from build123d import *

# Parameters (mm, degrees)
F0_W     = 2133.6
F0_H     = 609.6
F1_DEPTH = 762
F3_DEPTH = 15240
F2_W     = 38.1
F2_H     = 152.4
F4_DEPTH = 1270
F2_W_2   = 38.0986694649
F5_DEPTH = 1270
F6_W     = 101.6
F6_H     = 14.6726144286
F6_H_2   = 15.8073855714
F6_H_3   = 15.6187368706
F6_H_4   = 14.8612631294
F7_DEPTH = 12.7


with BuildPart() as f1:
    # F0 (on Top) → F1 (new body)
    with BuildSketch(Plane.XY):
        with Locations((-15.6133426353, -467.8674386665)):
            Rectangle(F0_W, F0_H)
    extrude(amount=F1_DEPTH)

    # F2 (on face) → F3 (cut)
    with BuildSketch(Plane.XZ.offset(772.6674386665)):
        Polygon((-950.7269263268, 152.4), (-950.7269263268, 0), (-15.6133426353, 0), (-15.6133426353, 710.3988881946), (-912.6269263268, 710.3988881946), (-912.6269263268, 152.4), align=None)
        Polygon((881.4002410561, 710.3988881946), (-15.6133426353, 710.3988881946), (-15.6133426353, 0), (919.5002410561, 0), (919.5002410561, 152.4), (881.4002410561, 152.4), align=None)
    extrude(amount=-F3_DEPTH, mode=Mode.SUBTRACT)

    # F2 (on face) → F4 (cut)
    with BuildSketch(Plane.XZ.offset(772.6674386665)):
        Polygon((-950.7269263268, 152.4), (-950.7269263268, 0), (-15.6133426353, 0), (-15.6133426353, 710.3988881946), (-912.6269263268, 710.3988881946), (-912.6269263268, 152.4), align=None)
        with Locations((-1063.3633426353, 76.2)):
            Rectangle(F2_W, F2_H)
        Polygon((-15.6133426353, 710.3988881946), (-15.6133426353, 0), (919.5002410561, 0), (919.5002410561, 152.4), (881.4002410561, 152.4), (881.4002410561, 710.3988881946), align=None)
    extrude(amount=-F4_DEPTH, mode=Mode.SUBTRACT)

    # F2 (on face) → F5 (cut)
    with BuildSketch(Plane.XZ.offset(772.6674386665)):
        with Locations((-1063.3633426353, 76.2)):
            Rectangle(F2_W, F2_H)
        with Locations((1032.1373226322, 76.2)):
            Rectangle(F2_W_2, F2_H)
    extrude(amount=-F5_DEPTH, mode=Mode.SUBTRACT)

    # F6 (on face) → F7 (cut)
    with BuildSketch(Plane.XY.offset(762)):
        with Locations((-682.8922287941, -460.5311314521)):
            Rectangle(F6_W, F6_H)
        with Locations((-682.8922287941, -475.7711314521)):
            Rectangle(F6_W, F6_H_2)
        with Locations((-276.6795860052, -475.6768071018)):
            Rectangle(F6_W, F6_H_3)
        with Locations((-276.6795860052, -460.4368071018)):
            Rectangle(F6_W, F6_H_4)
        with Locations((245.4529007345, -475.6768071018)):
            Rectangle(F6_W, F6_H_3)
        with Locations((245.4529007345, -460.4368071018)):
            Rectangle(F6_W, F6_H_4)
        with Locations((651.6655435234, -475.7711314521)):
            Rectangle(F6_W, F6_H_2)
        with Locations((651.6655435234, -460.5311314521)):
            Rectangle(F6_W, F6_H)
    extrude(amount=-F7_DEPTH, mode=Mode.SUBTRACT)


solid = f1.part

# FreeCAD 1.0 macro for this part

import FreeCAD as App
import Part
import Sketcher
from FreeCAD import Vector
Q = App.Units.Quantity

doc = App.newDocument("Part")
params = doc.addObject("Spreadsheet::Sheet", "Params")
for row, (alias, value) in enumerate([
    ("sketch1_width", "84 in"),
    ("sketch1_height", "24 in"),
    ("pad1_length", "30 in"),
    ("sketch2_height", "6 in"),
    ("sketch2_width", "1.5 in"),
    ("pocket1_length", "600 in"),
    ("sketch3_height", "6 in"),
    ("sketch3_width", "1.5 in"),
    ("pocket2_length", "50 in"),
    ("sketch4_height", "6 in"),
    ("sketch4_width", "1.5 in"),
    ("pocket3_length", "50 in"),
    ("sketch5_width", "4 in"),
    ("sketch5_height", "1.2 in"),
    ("pocket4_length", "0.5 in"),
], start=1):
    params.set(f"A{row}", alias)
    params.set(f"B{row}", "=" + value)
    params.setAlias(f"B{row}", alias)

body = doc.addObject("PartDesign::Body", "Body")

# Sketch on XY plane
sketch1 = doc.addObject("Sketcher::SketchObject", "Sketch")
body.addObject(sketch1)
sketch1.AttachmentSupport = (doc.XY_Plane, [""])
sketch1.MapMode = "FlatFace"
sketch1.addGeometry([
    Part.LineSegment(Vector(-1082, -163, 0), Vector(-1082, -773, 0)),
    Part.LineSegment(Vector(-1082, -773, 0), Vector(1051, -773, 0)),
    Part.LineSegment(Vector(1051, -773, 0), Vector(1051, -163, 0)),
    Part.LineSegment(Vector(1051, -163, 0), Vector(-1082, -163, 0)),
], False)
sketch1.addConstraint([
    Sketcher.Constraint("Coincident", 0, 2, 1, 1),
    Sketcher.Constraint("Coincident", 1, 2, 2, 1),
    Sketcher.Constraint("Coincident", 2, 2, 3, 1),
    Sketcher.Constraint("Coincident", 3, 2, 0, 1),
    Sketcher.Constraint("Vertical", 0),
    Sketcher.Constraint("Horizontal", 1),
    Sketcher.Constraint("Vertical", 2),
    Sketcher.Constraint("Horizontal", 3),
    Sketcher.Constraint("DistanceX", 1, 1, 1, 2, Q("84 in")),
    Sketcher.Constraint("DistanceY", 0, 2, 0, 1, Q("24 in")),
    Sketcher.Constraint("DistanceY", 0, 2, -1, 1, Q("772.667439 mm")),
    Sketcher.Constraint("DistanceX", 0, 2, -1, 1, Q("1082.413343 mm")),
])
sketch1.setExpression("Constraints[8]", "Params.sketch1_width")
sketch1.setExpression("Constraints[9]", "Params.sketch1_height")
pad1 = doc.addObject("PartDesign::Pad", "Pad")
body.addObject(pad1)
pad1.Profile = sketch1
pad1.setExpression("Length", "Params.pad1_length")

# Sketch on XZ plane
sketch2 = doc.addObject("Sketcher::SketchObject", "Sketch001")
body.addObject(sketch2)
sketch2.AttachmentSupport = (doc.XZ_Plane, [""])
sketch2.MapMode = "FlatFace"
sketch2.AttachmentOffset = App.Placement(Vector(0, 0, 772.667439), App.Rotation())
sketch2.addGeometry([
    Part.LineSegment(Vector(-951, 152, 0), Vector(-951, 0, 0)),  # 0
    Part.LineSegment(Vector(-951, 0, 0), Vector(920, 0, 0)),  # 1
    Part.LineSegment(Vector(920, 0, 0), Vector(920, 152, 0)),  # 2
    Part.LineSegment(Vector(920, 152, 0), Vector(881, 152, 0)),  # 3
    Part.LineSegment(Vector(881, 152, 0), Vector(881, 710, 0)),  # 4
    Part.LineSegment(Vector(881, 710, 0), Vector(-913, 710, 0)),  # 5
    Part.LineSegment(Vector(-913, 710, 0), Vector(-913, 152, 0)),  # 6
    Part.LineSegment(Vector(-913, 152, 0), Vector(-951, 152, 0)),  # 7
], False)
sketch2.addConstraint([
    Sketcher.Constraint("Coincident", 0, 2, 1, 1),
    Sketcher.Constraint("Coincident", 1, 2, 2, 1),
    Sketcher.Constraint("Coincident", 2, 2, 3, 1),
    Sketcher.Constraint("Coincident", 3, 2, 4, 1),
    Sketcher.Constraint("Coincident", 4, 2, 5, 1),
    Sketcher.Constraint("Coincident", 5, 2, 6, 1),
    Sketcher.Constraint("Coincident", 6, 2, 7, 1),
    Sketcher.Constraint("Coincident", 7, 2, 0, 1),
    Sketcher.Constraint("Vertical", 0),
    Sketcher.Constraint("Horizontal", 1),
    Sketcher.Constraint("Vertical", 2),
    Sketcher.Constraint("Horizontal", 3),
    Sketcher.Constraint("Vertical", 4),
    Sketcher.Constraint("Horizontal", 5),
    Sketcher.Constraint("Vertical", 6),
    Sketcher.Constraint("Horizontal", 7),
    Sketcher.Constraint("PointOnObject", 0, 2, -1),
    Sketcher.Constraint("Horizontal", 3, 2, 6, 2),
    Sketcher.Constraint("Equal", 3, 7),
    Sketcher.Constraint("DistanceY", 0, 2, 0, 1, Q("6 in")),
    Sketcher.Constraint("DistanceX", 3, 2, 3, 1, Q("1.5 in")),
    Sketcher.Constraint("DistanceY", 4, 1, 4, 2, Q("557.998888 mm")),
    Sketcher.Constraint("DistanceX", 1, 1, 1, 2, Q("1870.227167 mm")),
    Sketcher.Constraint("DistanceX", -1, 1, 1, 2, Q("919.500241 mm")),
])
sketch2.setExpression("Constraints[19]", "Params.sketch2_height")
sketch2.setExpression("Constraints[20]", "Params.sketch2_width")
pocket1 = doc.addObject("PartDesign::Pocket", "Pocket")
body.addObject(pocket1)
pocket1.Profile = sketch2
pocket1.setExpression("Length", "Params.pocket1_length")

# Sketch on XZ plane
sketch3 = doc.addObject("Sketcher::SketchObject", "Sketch002")
body.addObject(sketch3)
sketch3.AttachmentSupport = (doc.XZ_Plane, [""])
sketch3.MapMode = "FlatFace"
sketch3.AttachmentOffset = App.Placement(Vector(0, 0, 772.667439), App.Rotation())
sketch3.addGeometry([
    Part.LineSegment(Vector(-951, 152, 0), Vector(-951, 0, 0)),  # 0
    Part.LineSegment(Vector(-951, 0, 0), Vector(920, 0, 0)),  # 1
    Part.LineSegment(Vector(920, 0, 0), Vector(920, 152, 0)),  # 2
    Part.LineSegment(Vector(920, 152, 0), Vector(881, 152, 0)),  # 3
    Part.LineSegment(Vector(881, 152, 0), Vector(881, 710, 0)),  # 4
    Part.LineSegment(Vector(881, 710, 0), Vector(-913, 710, 0)),  # 5
    Part.LineSegment(Vector(-913, 710, 0), Vector(-913, 152, 0)),  # 6
    Part.LineSegment(Vector(-913, 152, 0), Vector(-951, 152, 0)),  # 7
    Part.LineSegment(Vector(-1082, 152, 0), Vector(-1082, 0, 0)),  # 8
    Part.LineSegment(Vector(-1082, 0, 0), Vector(-1044, 0, 0)),  # 9
    Part.LineSegment(Vector(-1044, 0, 0), Vector(-1044, 152, 0)),  # 10
    Part.LineSegment(Vector(-1044, 152, 0), Vector(-1082, 152, 0)),  # 11
], False)
sketch3.addConstraint([
    Sketcher.Constraint("Coincident", 0, 2, 1, 1),
    Sketcher.Constraint("Coincident", 1, 2, 2, 1),
    Sketcher.Constraint("Coincident", 2, 2, 3, 1),
    Sketcher.Constraint("Coincident", 3, 2, 4, 1),
    Sketcher.Constraint("Coincident", 4, 2, 5, 1),
    Sketcher.Constraint("Coincident", 5, 2, 6, 1),
    Sketcher.Constraint("Coincident", 6, 2, 7, 1),
    Sketcher.Constraint("Coincident", 7, 2, 0, 1),
    Sketcher.Constraint("Coincident", 8, 2, 9, 1),
    Sketcher.Constraint("Coincident", 9, 2, 10, 1),
    Sketcher.Constraint("Coincident", 10, 2, 11, 1),
    Sketcher.Constraint("Coincident", 11, 2, 8, 1),
    Sketcher.Constraint("Vertical", 0),
    Sketcher.Constraint("Horizontal", 1),
    Sketcher.Constraint("Vertical", 2),
    Sketcher.Constraint("Horizontal", 3),
    Sketcher.Constraint("Vertical", 4),
    Sketcher.Constraint("Horizontal", 5),
    Sketcher.Constraint("Vertical", 6),
    Sketcher.Constraint("Horizontal", 7),
    Sketcher.Constraint("Vertical", 8),
    Sketcher.Constraint("Horizontal", 9),
    Sketcher.Constraint("Vertical", 10),
    Sketcher.Constraint("Horizontal", 11),
    Sketcher.Constraint("PointOnObject", 0, 2, -1),
    Sketcher.Constraint("PointOnObject", 8, 2, -1),
    Sketcher.Constraint("Horizontal", 3, 2, 6, 2),
    Sketcher.Constraint("Horizontal", 7, 2, 10, 2),
    Sketcher.Constraint("Equal", 3, 7),
    Sketcher.Constraint("Equal", 7, 9),
    Sketcher.Constraint("DistanceY", 0, 2, 0, 1, Q("6 in")),
    Sketcher.Constraint("DistanceX", 3, 2, 3, 1, Q("1.5 in")),
    Sketcher.Constraint("DistanceY", 4, 1, 4, 2, Q("557.998888 mm")),
    Sketcher.Constraint("DistanceX", 1, 1, 1, 2, Q("1870.227167 mm")),
    Sketcher.Constraint("DistanceX", -1, 1, 1, 2, Q("919.500241 mm")),
    Sketcher.Constraint("DistanceX", 8, 2, -1, 1, Q("1082.413343 mm")),
])
sketch3.setExpression("Constraints[30]", "Params.sketch3_height")
sketch3.setExpression("Constraints[31]", "Params.sketch3_width")
pocket2 = doc.addObject("PartDesign::Pocket", "Pocket001")
body.addObject(pocket2)
pocket2.Profile = sketch3
pocket2.setExpression("Length", "Params.pocket2_length")

# Sketch on XZ plane
sketch4 = doc.addObject("Sketcher::SketchObject", "Sketch003")
body.addObject(sketch4)
sketch4.AttachmentSupport = (doc.XZ_Plane, [""])
sketch4.MapMode = "FlatFace"
sketch4.AttachmentOffset = App.Placement(Vector(0, 0, 772.667439), App.Rotation())
sketch4.addGeometry([
    Part.LineSegment(Vector(-1082, 152, 0), Vector(-1082, 0, 0)),  # 0
    Part.LineSegment(Vector(-1082, 0, 0), Vector(-1044, 0, 0)),  # 1
    Part.LineSegment(Vector(-1044, 0, 0), Vector(-1044, 152, 0)),  # 2
    Part.LineSegment(Vector(-1044, 152, 0), Vector(-1082, 152, 0)),  # 3
    Part.LineSegment(Vector(1013, 152, 0), Vector(1013, 0, 0)),  # 4
    Part.LineSegment(Vector(1013, 0, 0), Vector(1051, 0, 0)),  # 5
    Part.LineSegment(Vector(1051, 0, 0), Vector(1051, 152, 0)),  # 6
    Part.LineSegment(Vector(1051, 152, 0), Vector(1013, 152, 0)),  # 7
], False)
sketch4.addConstraint([
    Sketcher.Constraint("Coincident", 0, 2, 1, 1),
    Sketcher.Constraint("Coincident", 1, 2, 2, 1),
    Sketcher.Constraint("Coincident", 2, 2, 3, 1),
    Sketcher.Constraint("Coincident", 3, 2, 0, 1),
    Sketcher.Constraint("Coincident", 4, 2, 5, 1),
    Sketcher.Constraint("Coincident", 5, 2, 6, 1),
    Sketcher.Constraint("Coincident", 6, 2, 7, 1),
    Sketcher.Constraint("Coincident", 7, 2, 4, 1),
    Sketcher.Constraint("Vertical", 0),
    Sketcher.Constraint("Horizontal", 1),
    Sketcher.Constraint("Vertical", 2),
    Sketcher.Constraint("Horizontal", 3),
    Sketcher.Constraint("Vertical", 4),
    Sketcher.Constraint("Horizontal", 5),
    Sketcher.Constraint("Vertical", 6),
    Sketcher.Constraint("Horizontal", 7),
    Sketcher.Constraint("PointOnObject", 0, 2, -1),
    Sketcher.Constraint("PointOnObject", 4, 2, -1),
    Sketcher.Constraint("Horizontal", 3, 2, 6, 2),
    Sketcher.Constraint("DistanceY", 0, 2, 0, 1, Q("6 in")),
    Sketcher.Constraint("DistanceX", 1, 1, 1, 2, Q("1.5 in")),
    Sketcher.Constraint("DistanceX", 0, 2, 5, 2, Q("84 in")),
    Sketcher.Constraint("DistanceX", 5, 1, 5, 2, Q("38.098669 mm")),
    Sketcher.Constraint("DistanceX", 0, 2, -1, 1, Q("1082.413343 mm")),
])
sketch4.setExpression("Constraints[19]", "Params.sketch4_height")
sketch4.setExpression("Constraints[20]", "Params.sketch4_width")
pocket3 = doc.addObject("PartDesign::Pocket", "Pocket002")
body.addObject(pocket3)
pocket3.Profile = sketch4
pocket3.setExpression("Length", "Params.pocket3_length")

# Sketch on XY plane
sketch5 = doc.addObject("Sketcher::SketchObject", "Sketch004")
body.addObject(sketch5)
sketch5.AttachmentSupport = (doc.XY_Plane, [""])
sketch5.MapMode = "FlatFace"
sketch5.AttachmentOffset = App.Placement(Vector(0, 0, 30 * 25.4), App.Rotation())
sketch5.addGeometry([
    Part.LineSegment(Vector(-734, -453, 0), Vector(-734, -484, 0)),  # 0
    Part.LineSegment(Vector(-734, -484, 0), Vector(-632, -484, 0)),  # 1
    Part.LineSegment(Vector(-632, -484, 0), Vector(-632, -453, 0)),  # 2
    Part.LineSegment(Vector(-632, -453, 0), Vector(-734, -453, 0)),  # 3
    Part.LineSegment(Vector(-327, -483, 0), Vector(-226, -483, 0)),  # 4
    Part.LineSegment(Vector(-226, -483, 0), Vector(-226, -453, 0)),  # 5
    Part.LineSegment(Vector(-226, -453, 0), Vector(-327, -453, 0)),  # 6
    Part.LineSegment(Vector(-327, -453, 0), Vector(-327, -483, 0)),  # 7
    Part.LineSegment(Vector(195, -483, 0), Vector(296, -483, 0)),  # 8
    Part.LineSegment(Vector(296, -483, 0), Vector(296, -453, 0)),  # 9
    Part.LineSegment(Vector(296, -453, 0), Vector(195, -453, 0)),  # 10
    Part.LineSegment(Vector(195, -453, 0), Vector(195, -483, 0)),  # 11
    Part.LineSegment(Vector(601, -484, 0), Vector(702, -484, 0)),  # 12
    Part.LineSegment(Vector(702, -484, 0), Vector(702, -453, 0)),  # 13
    Part.LineSegment(Vector(702, -453, 0), Vector(601, -453, 0)),  # 14
    Part.LineSegment(Vector(601, -453, 0), Vector(601, -484, 0)),  # 15
], False)
sketch5.addConstraint([
    Sketcher.Constraint("Coincident", 0, 2, 1, 1),
    Sketcher.Constraint("Coincident", 1, 2, 2, 1),
    Sketcher.Constraint("Coincident", 2, 2, 3, 1),
    Sketcher.Constraint("Coincident", 3, 2, 0, 1),
    Sketcher.Constraint("Coincident", 4, 2, 5, 1),
    Sketcher.Constraint("Coincident", 5, 2, 6, 1),
    Sketcher.Constraint("Coincident", 6, 2, 7, 1),
    Sketcher.Constraint("Coincident", 7, 2, 4, 1),
    Sketcher.Constraint("Coincident", 8, 2, 9, 1),
    Sketcher.Constraint("Coincident", 9, 2, 10, 1),
    Sketcher.Constraint("Coincident", 10, 2, 11, 1),
    Sketcher.Constraint("Coincident", 11, 2, 8, 1),
    Sketcher.Constraint("Coincident", 12, 2, 13, 1),
    Sketcher.Constraint("Coincident", 13, 2, 14, 1),
    Sketcher.Constraint("Coincident", 14, 2, 15, 1),
    Sketcher.Constraint("Coincident", 15, 2, 12, 1),
    Sketcher.Constraint("Vertical", 0),
    Sketcher.Constraint("Horizontal", 1),
    Sketcher.Constraint("Vertical", 2),
    Sketcher.Constraint("Horizontal", 3),
    Sketcher.Constraint("Horizontal", 4),
    Sketcher.Constraint("Vertical", 5),
    Sketcher.Constraint("Horizontal", 6),
    Sketcher.Constraint("Vertical", 7),
    Sketcher.Constraint("Horizontal", 8),
    Sketcher.Constraint("Vertical", 9),
    Sketcher.Constraint("Horizontal", 10),
    Sketcher.Constraint("Vertical", 11),
    Sketcher.Constraint("Horizontal", 12),
    Sketcher.Constraint("Vertical", 13),
    Sketcher.Constraint("Horizontal", 14),
    Sketcher.Constraint("Vertical", 15),
    Sketcher.Constraint("Horizontal", 7, 2, 8, 2),
    Sketcher.Constraint("Horizontal", 6, 2, 9, 2),
    Sketcher.Constraint("Horizontal", 1, 2, 12, 2),
    Sketcher.Constraint("Horizontal", 3, 2, 13, 2),
    Sketcher.Constraint("Equal", 3, 4),
    Sketcher.Constraint("Equal", 6, 8),
    Sketcher.Constraint("Equal", 10, 12),
    Sketcher.Constraint("Equal", 2, 5),
    Sketcher.Constraint("DistanceX", 1, 1, 1, 2, Q("4 in")),
    Sketcher.Constraint("DistanceY", 0, 2, 0, 1, Q("1.2 in")),
    Sketcher.Constraint("DistanceX", -1, 1, 8, 2, Q("11.6635 in")),
    Sketcher.Constraint("DistanceX", 0, 2, -1, 1, Q("733.692229 mm")),
    Sketcher.Constraint("DistanceY", 1, 2, 4, 2, Q("0.188649 mm")),
    Sketcher.Constraint("DistanceX", 4, 2, 12, 2, Q("928.34513 mm")),
    Sketcher.Constraint("DistanceY", 0, 2, -1, 1, Q("483.674824 mm")),
    Sketcher.Constraint("DistanceX", 4, 2, -1, 1, Q("225.879586 mm")),
])
sketch5.setExpression("Constraints[40]", "Params.sketch5_width")
sketch5.setExpression("Constraints[41]", "Params.sketch5_height")
pocket4 = doc.addObject("PartDesign::Pocket", "Pocket003")
body.addObject(pocket4)
pocket4.Profile = sketch5
pocket4.setExpression("Length", "Params.pocket4_length")

doc.recompute()
